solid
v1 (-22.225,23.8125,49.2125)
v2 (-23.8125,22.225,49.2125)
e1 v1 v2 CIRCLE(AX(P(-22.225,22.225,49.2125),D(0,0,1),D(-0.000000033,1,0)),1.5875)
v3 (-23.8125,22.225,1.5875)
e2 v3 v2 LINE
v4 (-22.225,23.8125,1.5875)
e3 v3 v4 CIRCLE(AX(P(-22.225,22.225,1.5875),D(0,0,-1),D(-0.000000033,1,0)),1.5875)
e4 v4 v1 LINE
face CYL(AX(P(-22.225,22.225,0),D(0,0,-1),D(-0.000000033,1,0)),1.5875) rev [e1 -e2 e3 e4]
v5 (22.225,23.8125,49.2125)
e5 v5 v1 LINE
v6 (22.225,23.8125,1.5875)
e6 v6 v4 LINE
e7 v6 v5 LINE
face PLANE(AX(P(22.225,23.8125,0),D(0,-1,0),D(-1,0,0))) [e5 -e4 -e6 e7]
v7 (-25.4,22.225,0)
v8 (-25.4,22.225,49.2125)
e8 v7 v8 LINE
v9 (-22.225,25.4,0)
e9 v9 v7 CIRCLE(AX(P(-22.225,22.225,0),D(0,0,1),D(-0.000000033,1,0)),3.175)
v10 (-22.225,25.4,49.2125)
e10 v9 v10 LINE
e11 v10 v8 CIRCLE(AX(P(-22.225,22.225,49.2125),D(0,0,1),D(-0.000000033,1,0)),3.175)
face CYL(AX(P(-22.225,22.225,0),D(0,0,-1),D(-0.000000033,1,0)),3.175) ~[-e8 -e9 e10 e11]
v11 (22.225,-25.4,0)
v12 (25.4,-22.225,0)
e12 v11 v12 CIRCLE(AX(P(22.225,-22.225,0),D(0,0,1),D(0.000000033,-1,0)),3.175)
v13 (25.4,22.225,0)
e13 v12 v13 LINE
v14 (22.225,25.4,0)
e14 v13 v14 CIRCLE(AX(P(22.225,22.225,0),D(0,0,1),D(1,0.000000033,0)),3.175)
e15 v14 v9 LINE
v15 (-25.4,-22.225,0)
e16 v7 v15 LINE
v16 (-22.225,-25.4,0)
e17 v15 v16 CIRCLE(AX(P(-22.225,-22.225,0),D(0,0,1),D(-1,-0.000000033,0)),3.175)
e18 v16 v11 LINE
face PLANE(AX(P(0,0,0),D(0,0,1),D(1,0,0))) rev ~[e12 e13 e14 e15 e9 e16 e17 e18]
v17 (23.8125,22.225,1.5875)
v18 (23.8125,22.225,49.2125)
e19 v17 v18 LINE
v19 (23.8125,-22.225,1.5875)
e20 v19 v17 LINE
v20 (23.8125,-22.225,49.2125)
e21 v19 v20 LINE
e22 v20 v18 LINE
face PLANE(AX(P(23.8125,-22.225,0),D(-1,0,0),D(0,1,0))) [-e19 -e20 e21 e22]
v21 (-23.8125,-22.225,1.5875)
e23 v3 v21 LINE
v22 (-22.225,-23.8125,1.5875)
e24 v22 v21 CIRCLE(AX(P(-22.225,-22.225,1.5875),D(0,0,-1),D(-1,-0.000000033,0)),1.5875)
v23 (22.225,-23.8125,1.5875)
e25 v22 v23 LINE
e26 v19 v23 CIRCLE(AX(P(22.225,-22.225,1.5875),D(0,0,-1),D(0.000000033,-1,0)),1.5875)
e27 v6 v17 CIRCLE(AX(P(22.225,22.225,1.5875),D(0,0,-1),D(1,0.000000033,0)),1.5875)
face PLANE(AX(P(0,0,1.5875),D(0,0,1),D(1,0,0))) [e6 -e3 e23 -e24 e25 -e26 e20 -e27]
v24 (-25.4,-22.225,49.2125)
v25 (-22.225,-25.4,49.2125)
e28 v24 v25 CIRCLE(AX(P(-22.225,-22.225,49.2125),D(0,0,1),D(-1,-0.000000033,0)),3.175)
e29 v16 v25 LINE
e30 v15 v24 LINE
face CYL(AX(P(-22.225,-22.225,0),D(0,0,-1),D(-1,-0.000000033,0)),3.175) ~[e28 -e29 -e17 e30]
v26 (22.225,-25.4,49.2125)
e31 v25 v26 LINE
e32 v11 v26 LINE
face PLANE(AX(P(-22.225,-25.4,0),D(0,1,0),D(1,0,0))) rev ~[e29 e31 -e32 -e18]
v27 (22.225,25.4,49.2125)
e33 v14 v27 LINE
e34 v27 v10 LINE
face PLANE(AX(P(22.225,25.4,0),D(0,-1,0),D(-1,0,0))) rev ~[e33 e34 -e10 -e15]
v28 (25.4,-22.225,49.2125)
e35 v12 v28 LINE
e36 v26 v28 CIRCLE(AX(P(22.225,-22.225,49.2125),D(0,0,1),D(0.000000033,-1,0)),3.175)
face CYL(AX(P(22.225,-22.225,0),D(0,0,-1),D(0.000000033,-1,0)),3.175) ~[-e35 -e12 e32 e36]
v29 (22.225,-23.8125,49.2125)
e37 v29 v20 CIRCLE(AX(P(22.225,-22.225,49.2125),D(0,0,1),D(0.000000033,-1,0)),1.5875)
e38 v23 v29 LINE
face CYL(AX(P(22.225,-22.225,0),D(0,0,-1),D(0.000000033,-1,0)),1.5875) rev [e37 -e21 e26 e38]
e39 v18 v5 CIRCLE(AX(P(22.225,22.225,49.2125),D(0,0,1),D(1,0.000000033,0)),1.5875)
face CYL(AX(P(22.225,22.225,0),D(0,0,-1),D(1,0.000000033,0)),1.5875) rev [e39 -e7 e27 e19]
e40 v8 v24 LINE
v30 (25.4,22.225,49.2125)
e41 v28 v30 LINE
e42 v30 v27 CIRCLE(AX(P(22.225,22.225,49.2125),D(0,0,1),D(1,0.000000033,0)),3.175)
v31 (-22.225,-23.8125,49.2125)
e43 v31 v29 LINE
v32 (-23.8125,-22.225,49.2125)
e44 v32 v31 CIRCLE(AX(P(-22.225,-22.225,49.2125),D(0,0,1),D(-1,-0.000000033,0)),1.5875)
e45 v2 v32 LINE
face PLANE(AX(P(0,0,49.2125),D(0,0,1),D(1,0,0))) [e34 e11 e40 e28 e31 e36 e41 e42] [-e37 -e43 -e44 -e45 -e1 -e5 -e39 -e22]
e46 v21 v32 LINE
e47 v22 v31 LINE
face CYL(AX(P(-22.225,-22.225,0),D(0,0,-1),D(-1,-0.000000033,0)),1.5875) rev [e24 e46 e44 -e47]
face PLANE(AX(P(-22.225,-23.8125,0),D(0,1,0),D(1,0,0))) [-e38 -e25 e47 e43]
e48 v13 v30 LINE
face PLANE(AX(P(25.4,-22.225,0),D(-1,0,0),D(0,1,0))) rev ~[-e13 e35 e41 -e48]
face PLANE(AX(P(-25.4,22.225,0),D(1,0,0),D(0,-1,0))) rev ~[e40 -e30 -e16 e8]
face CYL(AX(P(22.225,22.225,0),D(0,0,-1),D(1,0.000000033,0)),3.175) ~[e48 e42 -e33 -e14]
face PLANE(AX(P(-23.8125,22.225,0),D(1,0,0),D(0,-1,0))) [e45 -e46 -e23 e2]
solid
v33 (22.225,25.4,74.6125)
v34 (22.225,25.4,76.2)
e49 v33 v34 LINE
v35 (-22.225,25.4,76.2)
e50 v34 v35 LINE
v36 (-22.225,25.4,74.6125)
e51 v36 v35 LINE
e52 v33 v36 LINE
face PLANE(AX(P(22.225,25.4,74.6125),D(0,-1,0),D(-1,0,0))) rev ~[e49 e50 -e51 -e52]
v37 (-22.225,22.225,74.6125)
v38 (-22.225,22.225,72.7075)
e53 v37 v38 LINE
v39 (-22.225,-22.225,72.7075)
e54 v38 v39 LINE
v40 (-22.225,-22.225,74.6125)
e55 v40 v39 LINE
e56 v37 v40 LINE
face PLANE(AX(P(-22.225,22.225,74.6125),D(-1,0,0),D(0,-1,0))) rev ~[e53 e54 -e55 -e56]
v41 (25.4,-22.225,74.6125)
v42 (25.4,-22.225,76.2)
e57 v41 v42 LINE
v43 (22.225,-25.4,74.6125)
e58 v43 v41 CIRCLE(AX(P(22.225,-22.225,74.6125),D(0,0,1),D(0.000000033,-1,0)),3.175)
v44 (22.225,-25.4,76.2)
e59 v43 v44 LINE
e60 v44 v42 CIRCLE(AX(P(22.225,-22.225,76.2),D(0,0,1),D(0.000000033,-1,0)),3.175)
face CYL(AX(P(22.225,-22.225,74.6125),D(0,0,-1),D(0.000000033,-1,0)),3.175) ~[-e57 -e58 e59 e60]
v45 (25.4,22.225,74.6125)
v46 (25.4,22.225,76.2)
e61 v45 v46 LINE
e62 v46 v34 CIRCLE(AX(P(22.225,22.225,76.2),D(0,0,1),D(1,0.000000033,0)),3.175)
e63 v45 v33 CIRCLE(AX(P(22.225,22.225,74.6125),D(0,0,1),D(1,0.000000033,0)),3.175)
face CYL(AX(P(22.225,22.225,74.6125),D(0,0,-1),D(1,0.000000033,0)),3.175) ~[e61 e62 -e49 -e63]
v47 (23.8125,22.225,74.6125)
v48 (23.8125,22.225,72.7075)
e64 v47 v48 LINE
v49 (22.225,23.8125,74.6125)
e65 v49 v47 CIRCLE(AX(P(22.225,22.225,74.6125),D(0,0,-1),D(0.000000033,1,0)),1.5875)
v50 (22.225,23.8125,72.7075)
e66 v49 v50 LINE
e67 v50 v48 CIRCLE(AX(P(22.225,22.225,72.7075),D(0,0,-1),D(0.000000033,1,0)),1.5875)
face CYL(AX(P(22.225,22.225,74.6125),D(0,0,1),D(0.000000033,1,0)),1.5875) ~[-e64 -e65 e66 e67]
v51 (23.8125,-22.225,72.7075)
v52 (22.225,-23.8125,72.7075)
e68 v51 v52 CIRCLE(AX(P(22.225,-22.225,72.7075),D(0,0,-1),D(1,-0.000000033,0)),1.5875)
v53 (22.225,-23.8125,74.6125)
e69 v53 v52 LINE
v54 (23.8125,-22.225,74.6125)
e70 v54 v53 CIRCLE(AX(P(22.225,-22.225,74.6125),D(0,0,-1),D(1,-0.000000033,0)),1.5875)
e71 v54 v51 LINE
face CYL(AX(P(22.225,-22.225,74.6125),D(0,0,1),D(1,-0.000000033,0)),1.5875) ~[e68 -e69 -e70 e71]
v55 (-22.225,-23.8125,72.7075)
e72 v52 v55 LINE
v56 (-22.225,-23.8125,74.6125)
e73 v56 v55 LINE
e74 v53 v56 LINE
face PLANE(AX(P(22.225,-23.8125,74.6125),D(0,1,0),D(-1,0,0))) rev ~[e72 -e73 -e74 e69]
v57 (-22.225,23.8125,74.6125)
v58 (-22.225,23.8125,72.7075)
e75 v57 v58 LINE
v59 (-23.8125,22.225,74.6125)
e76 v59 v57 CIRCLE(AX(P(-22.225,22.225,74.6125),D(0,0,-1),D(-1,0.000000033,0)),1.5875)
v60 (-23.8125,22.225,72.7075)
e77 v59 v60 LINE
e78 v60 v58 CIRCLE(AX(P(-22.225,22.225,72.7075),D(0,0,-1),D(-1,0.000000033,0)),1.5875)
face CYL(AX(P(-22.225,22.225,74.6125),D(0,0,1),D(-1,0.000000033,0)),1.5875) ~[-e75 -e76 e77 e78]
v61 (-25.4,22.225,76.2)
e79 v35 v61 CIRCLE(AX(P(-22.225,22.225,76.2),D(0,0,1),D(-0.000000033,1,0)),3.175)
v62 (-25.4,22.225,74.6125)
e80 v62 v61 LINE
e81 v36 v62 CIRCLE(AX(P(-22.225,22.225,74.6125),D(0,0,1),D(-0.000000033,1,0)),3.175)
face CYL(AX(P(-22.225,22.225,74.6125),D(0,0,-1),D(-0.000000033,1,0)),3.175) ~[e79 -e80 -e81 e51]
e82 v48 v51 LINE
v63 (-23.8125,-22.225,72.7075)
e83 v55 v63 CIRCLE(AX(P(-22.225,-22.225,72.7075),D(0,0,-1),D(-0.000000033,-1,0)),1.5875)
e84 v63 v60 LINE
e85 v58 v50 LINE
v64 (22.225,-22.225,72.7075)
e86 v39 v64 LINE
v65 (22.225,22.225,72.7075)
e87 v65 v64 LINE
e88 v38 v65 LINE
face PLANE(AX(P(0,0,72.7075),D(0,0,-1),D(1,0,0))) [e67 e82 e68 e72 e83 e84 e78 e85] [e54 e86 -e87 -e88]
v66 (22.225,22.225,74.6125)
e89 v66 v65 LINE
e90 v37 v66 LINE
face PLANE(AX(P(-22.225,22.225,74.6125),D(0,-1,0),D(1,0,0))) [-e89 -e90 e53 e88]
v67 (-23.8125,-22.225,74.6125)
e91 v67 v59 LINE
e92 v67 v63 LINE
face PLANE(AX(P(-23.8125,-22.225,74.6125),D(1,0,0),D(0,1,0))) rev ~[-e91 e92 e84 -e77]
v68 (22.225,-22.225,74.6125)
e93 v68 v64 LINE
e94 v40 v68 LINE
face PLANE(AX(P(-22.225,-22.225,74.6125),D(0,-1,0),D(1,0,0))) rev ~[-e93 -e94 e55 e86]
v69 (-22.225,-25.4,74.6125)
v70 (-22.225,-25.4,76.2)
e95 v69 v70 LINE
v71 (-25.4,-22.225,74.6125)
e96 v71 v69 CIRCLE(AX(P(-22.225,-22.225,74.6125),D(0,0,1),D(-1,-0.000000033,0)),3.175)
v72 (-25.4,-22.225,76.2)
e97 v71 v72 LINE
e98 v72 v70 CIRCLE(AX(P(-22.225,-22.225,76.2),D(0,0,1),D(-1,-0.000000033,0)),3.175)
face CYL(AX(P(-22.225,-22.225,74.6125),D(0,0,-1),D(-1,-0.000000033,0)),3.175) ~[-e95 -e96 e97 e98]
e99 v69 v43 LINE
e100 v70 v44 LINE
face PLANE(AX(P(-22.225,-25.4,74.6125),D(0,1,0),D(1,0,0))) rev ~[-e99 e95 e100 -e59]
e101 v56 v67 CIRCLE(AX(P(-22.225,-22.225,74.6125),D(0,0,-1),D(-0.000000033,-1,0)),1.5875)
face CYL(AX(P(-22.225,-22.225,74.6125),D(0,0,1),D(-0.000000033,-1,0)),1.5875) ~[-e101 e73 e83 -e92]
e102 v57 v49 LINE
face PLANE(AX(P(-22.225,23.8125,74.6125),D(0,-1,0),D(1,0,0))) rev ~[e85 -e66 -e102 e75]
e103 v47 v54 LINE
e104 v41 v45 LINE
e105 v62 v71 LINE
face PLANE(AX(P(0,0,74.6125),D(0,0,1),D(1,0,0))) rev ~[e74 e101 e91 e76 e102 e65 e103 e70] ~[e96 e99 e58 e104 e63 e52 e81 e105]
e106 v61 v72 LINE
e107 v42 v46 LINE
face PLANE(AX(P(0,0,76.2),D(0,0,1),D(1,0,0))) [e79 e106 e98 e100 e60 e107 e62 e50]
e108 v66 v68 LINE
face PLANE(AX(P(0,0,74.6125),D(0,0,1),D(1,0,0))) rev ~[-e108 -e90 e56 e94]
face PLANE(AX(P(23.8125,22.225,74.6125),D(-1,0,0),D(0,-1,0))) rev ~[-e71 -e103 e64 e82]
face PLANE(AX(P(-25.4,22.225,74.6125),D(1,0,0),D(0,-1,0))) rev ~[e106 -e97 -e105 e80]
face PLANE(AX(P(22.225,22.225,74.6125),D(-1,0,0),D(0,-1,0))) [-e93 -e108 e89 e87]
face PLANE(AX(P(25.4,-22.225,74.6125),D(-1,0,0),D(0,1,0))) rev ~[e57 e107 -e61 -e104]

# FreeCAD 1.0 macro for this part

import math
import FreeCAD as App
import Part
import Sketcher

V = App.Vector
Q = App.Units.Quantity


def faces_at(feature, points):
    """Names of the faces that lie closest to the given points."""
    faces = feature.Shape.Faces
    near = lambda p: min(range(len(faces)), key=lambda i: faces[i].distToShape(Part.Vertex(*p))[0])
    return sorted({f"Face{near(p) + 1}" for p in points})


def add_polygon(sketch, points):
    """Adds a closed chain of lines whose ends are joined by coincident constraints."""
    first, n = sketch.GeometryCount, len(points)
    for a, b in zip(points, points[1:] + points[:1]):
        sketch.addGeometry(Part.LineSegment(App.Vector(*a, 0), App.Vector(*b, 0)), False)
    for i in range(n):
        sketch.addConstraint(Sketcher.Constraint("Coincident", first + i, 2, first + (i + 1) % n, 1))

doc = App.newDocument("Part")
body = doc.addObject("PartDesign::Body", "Body")

# Sketch on XY plane
sketch1 = body.newObject("Sketcher::SketchObject", "Sketch")
sketch1.AttachmentSupport = (doc.getObject("XY_Plane"), [""])
sketch1.MapMode = "FlatFace"
sketch1.addGeometry(Part.ArcOfCircle(Part.Circle(V(22.2, 22.2, 0), V(0, 0, 1), 3.2), math.radians(0), math.radians(90)), False)
sketch1.addGeometry(Part.LineSegment(V(22.2, 25.4, 0), V(-22.2, 25.4, 0)), False)
sketch1.addGeometry(Part.ArcOfCircle(Part.Circle(V(-22.2, 22.2, 0), V(0, 0, 1), 3.2), math.radians(90), math.radians(180)), False)
sketch1.addGeometry(Part.LineSegment(V(-25.4, 22.2, 0), V(-25.4, -22.2, 0)), False)
sketch1.addGeometry(Part.ArcOfCircle(Part.Circle(V(-22.2, -22.2, 0), V(0, 0, 1), 3.2), math.radians(-180), math.radians(-90)), False)
sketch1.addGeometry(Part.LineSegment(V(-22.2, -25.4, 0), V(22.2, -25.4, 0)), False)
sketch1.addGeometry(Part.ArcOfCircle(Part.Circle(V(22.2, -22.2, 0), V(0, 0, 1), 3.2), math.radians(-90), math.radians(0)), False)
sketch1.addGeometry(Part.LineSegment(V(25.4, -22.2, 0), V(25.4, 22.2, 0)), False)
sketch1.addConstraint(Sketcher.Constraint("Tangent", 0, 2, 1, 1))
sketch1.addConstraint(Sketcher.Constraint("Tangent", 1, 2, 2, 1))
sketch1.addConstraint(Sketcher.Constraint("Tangent", 2, 2, 3, 1))
sketch1.addConstraint(Sketcher.Constraint("Tangent", 3, 2, 4, 1))
sketch1.addConstraint(Sketcher.Constraint("Tangent", 4, 2, 5, 1))
sketch1.addConstraint(Sketcher.Constraint("Tangent", 5, 2, 6, 1))
sketch1.addConstraint(Sketcher.Constraint("Tangent", 6, 2, 7, 1))
sketch1.addConstraint(Sketcher.Constraint("Tangent", 7, 2, 0, 1))
sketch1.addConstraint(Sketcher.Constraint("Horizontal", 1))
sketch1.addConstraint(Sketcher.Constraint("Vertical", 3))
sketch1.addConstraint(Sketcher.Constraint("Horizontal", 5))
sketch1.addConstraint(Sketcher.Constraint("Vertical", 7))
sketch1.addConstraint(Sketcher.Constraint("Equal", 0, 2))
sketch1.addConstraint(Sketcher.Constraint("Equal", 2, 4))
sketch1.addConstraint(Sketcher.Constraint("Equal", 4, 6))
sketch1.addConstraint(Sketcher.Constraint("Symmetric", 0, 3, 4, 3, -1, 1))
sketch1.addConstraint(Sketcher.Constraint("Equal", 5, 3))
sketch1.addConstraint(Sketcher.Constraint("DistanceY", -1, 1, 0, 2, Q("1 in")))
sketch1.addConstraint(Sketcher.Constraint("Radius", 0, Q("0.125 in")))
pad1 = body.newObject("PartDesign::Pad", "Pad")
pad1.Profile = sketch1
pad1.Length = Q("1.9375 in")
doc.recompute()

thickness = body.newObject("PartDesign::Thickness", "Thickness")
thickness.Base = (pad1, faces_at(pad1, [(0, 0, 49.212)]))
thickness.Value = Q("0.0625 in")
thickness.Reversed = True
thickness.Join = "Arc"
body2 = doc.addObject("PartDesign::Body", "Body001")

# Sketch on XY plane
sketch2 = body2.newObject("Sketcher::SketchObject", "Sketch001")
sketch2.AttachmentSupport = (doc.getObject("XY_Plane001"), [""])
sketch2.MapMode = "FlatFace"
sketch2.AttachmentOffset = App.Placement(V(0, 0, 2.9375 * 25.4), App.Rotation())
sketch2.addGeometry(Part.ArcOfCircle(Part.Circle(V(-22.2, 22.2, 0), V(0, 0, 1), 3.2), math.radians(90), math.radians(180)), False)
sketch2.addGeometry(Part.LineSegment(V(-25.4, 22.2, 0), V(-25.4, -22.2, 0)), False)
sketch2.addGeometry(Part.ArcOfCircle(Part.Circle(V(-22.2, -22.2, 0), V(0, 0, 1), 3.2), math.radians(-180), math.radians(-90)), False)
sketch2.addGeometry(Part.LineSegment(V(-22.2, -25.4, 0), V(22.2, -25.4, 0)), False)
sketch2.addGeometry(Part.ArcOfCircle(Part.Circle(V(22.2, -22.2, 0), V(0, 0, 1), 3.2), math.radians(-90), math.radians(0)), False)
sketch2.addGeometry(Part.LineSegment(V(25.4, -22.2, 0), V(25.4, 22.2, 0)), False)
sketch2.addGeometry(Part.ArcOfCircle(Part.Circle(V(22.2, 22.2, 0), V(0, 0, 1), 3.2), math.radians(0), math.radians(90)), False)
sketch2.addGeometry(Part.LineSegment(V(22.2, 25.4, 0), V(-22.2, 25.4, 0)), False)
sketch2.addConstraint(Sketcher.Constraint("Tangent", 0, 2, 1, 1))
sketch2.addConstraint(Sketcher.Constraint("Tangent", 1, 2, 2, 1))
sketch2.addConstraint(Sketcher.Constraint("Tangent", 2, 2, 3, 1))
sketch2.addConstraint(Sketcher.Constraint("Tangent", 3, 2, 4, 1))
sketch2.addConstraint(Sketcher.Constraint("Tangent", 4, 2, 5, 1))
sketch2.addConstraint(Sketcher.Constraint("Tangent", 5, 2, 6, 1))
sketch2.addConstraint(Sketcher.Constraint("Tangent", 6, 2, 7, 1))
sketch2.addConstraint(Sketcher.Constraint("Tangent", 7, 2, 0, 1))
sketch2.addConstraint(Sketcher.Constraint("Vertical", 1))
sketch2.addConstraint(Sketcher.Constraint("Horizontal", 3))
sketch2.addConstraint(Sketcher.Constraint("Vertical", 5))
sketch2.addConstraint(Sketcher.Constraint("Horizontal", 7))
sketch2.addConstraint(Sketcher.Constraint("Equal", 0, 2))
sketch2.addConstraint(Sketcher.Constraint("Equal", 2, 4))
sketch2.addConstraint(Sketcher.Constraint("Equal", 4, 6))
sketch2.addConstraint(Sketcher.Constraint("Symmetric", 0, 3, 4, 3, -1, 1))
sketch2.addConstraint(Sketcher.Constraint("Equal", 7, 1))
sketch2.addConstraint(Sketcher.Constraint("DistanceX", 0, 2, -1, 1, Q("1 in")))
sketch2.addConstraint(Sketcher.Constraint("Radius", 0, Q("0.125 in")))
pad2 = body2.newObject("PartDesign::Pad", "Pad001")
pad2.Profile = sketch2
pad2.Length = Q("0.0625 in")

# Sketch on XY plane
sketch3 = body2.newObject("Sketcher::SketchObject", "Sketch002")
sketch3.AttachmentSupport = (doc.getObject("XY_Plane001"), [""])
sketch3.MapMode = "FlatFace"
sketch3.AttachmentOffset = App.Placement(V(0, 0, 2.9375 * 25.4), App.Rotation())
sketch3.addGeometry(Part.ArcOfCircle(Part.Circle(V(22.2, -22.2, 0), V(0, 0, 1), 1.6), math.radians(-90), math.radians(0)), False)  # 0
sketch3.addGeometry(Part.LineSegment(V(22.2, -23.8, 0), V(-22.2, -23.8, 0)), False)  # 1
sketch3.addGeometry(Part.ArcOfCircle(Part.Circle(V(-22.2, -22.2, 0), V(0, 0, 1), 1.6), math.radians(-180), math.radians(-90)), False)  # 2
sketch3.addGeometry(Part.LineSegment(V(-23.8, -22.2, 0), V(-23.8, 22.2, 0)), False)  # 3
sketch3.addGeometry(Part.ArcOfCircle(Part.Circle(V(-22.2, 22.2, 0), V(0, 0, 1), 1.6), math.radians(90), math.radians(180)), False)  # 4
sketch3.addGeometry(Part.LineSegment(V(-22.2, 23.8, 0), V(22.2, 23.8, 0)), False)  # 5
sketch3.addGeometry(Part.ArcOfCircle(Part.Circle(V(22.2, 22.2, 0), V(0, 0, 1), 1.6), math.radians(0), math.radians(90)), False)  # 6
sketch3.addGeometry(Part.LineSegment(V(23.8, 22.2, 0), V(23.8, -22.2, 0)), False)  # 7
add_polygon(sketch3, [(22.2, 22.2), (-22.2, 22.2), (-22.2, -22.2), (22.2, -22.2)])  # lines 8-11
sketch3.addConstraint(Sketcher.Constraint("Tangent", 0, 1, 1, 1))
sketch3.addConstraint(Sketcher.Constraint("Tangent", 1, 2, 2, 2))
sketch3.addConstraint(Sketcher.Constraint("Tangent", 2, 1, 3, 1))
sketch3.addConstraint(Sketcher.Constraint("Tangent", 3, 2, 4, 2))
sketch3.addConstraint(Sketcher.Constraint("Tangent", 4, 1, 5, 1))
sketch3.addConstraint(Sketcher.Constraint("Tangent", 5, 2, 6, 2))
sketch3.addConstraint(Sketcher.Constraint("Tangent", 6, 1, 7, 1))
sketch3.addConstraint(Sketcher.Constraint("Tangent", 7, 2, 0, 2))
sketch3.addConstraint(Sketcher.Constraint("Horizontal", 1))
sketch3.addConstraint(Sketcher.Constraint("Vertical", 3))
sketch3.addConstraint(Sketcher.Constraint("Horizontal", 5))
sketch3.addConstraint(Sketcher.Constraint("Vertical", 7))
sketch3.addConstraint(Sketcher.Constraint("Horizontal", 8))
sketch3.addConstraint(Sketcher.Constraint("Vertical", 9))
sketch3.addConstraint(Sketcher.Constraint("Horizontal", 10))
sketch3.addConstraint(Sketcher.Constraint("Vertical", 11))
sketch3.addConstraint(Sketcher.Constraint("Coincident", 8, 2, 4, 3))
sketch3.addConstraint(Sketcher.Constraint("Coincident", 9, 2, 2, 3))
sketch3.addConstraint(Sketcher.Constraint("Coincident", 10, 2, 0, 3))
sketch3.addConstraint(Sketcher.Constraint("Equal", 4, 6))
sketch3.addConstraint(Sketcher.Constraint("Symmetric", 0, 3, 4, 3, -1, 1))
sketch3.addConstraint(Sketcher.Constraint("Equal", 10, 3))
sketch3.addConstraint(Sketcher.Constraint("Radius", 0, Q("0.0625 in")))
sketch3.addConstraint(Sketcher.Constraint("DistanceX", 1, 2, 1, 1, Q("1.75 in")))
pad3 = body2.newObject("PartDesign::Pad", "Pad002")
pad3.Profile = sketch3
pad3.Length = Q("0.075 in")
pad3.Reversed = True

doc.recompute()
